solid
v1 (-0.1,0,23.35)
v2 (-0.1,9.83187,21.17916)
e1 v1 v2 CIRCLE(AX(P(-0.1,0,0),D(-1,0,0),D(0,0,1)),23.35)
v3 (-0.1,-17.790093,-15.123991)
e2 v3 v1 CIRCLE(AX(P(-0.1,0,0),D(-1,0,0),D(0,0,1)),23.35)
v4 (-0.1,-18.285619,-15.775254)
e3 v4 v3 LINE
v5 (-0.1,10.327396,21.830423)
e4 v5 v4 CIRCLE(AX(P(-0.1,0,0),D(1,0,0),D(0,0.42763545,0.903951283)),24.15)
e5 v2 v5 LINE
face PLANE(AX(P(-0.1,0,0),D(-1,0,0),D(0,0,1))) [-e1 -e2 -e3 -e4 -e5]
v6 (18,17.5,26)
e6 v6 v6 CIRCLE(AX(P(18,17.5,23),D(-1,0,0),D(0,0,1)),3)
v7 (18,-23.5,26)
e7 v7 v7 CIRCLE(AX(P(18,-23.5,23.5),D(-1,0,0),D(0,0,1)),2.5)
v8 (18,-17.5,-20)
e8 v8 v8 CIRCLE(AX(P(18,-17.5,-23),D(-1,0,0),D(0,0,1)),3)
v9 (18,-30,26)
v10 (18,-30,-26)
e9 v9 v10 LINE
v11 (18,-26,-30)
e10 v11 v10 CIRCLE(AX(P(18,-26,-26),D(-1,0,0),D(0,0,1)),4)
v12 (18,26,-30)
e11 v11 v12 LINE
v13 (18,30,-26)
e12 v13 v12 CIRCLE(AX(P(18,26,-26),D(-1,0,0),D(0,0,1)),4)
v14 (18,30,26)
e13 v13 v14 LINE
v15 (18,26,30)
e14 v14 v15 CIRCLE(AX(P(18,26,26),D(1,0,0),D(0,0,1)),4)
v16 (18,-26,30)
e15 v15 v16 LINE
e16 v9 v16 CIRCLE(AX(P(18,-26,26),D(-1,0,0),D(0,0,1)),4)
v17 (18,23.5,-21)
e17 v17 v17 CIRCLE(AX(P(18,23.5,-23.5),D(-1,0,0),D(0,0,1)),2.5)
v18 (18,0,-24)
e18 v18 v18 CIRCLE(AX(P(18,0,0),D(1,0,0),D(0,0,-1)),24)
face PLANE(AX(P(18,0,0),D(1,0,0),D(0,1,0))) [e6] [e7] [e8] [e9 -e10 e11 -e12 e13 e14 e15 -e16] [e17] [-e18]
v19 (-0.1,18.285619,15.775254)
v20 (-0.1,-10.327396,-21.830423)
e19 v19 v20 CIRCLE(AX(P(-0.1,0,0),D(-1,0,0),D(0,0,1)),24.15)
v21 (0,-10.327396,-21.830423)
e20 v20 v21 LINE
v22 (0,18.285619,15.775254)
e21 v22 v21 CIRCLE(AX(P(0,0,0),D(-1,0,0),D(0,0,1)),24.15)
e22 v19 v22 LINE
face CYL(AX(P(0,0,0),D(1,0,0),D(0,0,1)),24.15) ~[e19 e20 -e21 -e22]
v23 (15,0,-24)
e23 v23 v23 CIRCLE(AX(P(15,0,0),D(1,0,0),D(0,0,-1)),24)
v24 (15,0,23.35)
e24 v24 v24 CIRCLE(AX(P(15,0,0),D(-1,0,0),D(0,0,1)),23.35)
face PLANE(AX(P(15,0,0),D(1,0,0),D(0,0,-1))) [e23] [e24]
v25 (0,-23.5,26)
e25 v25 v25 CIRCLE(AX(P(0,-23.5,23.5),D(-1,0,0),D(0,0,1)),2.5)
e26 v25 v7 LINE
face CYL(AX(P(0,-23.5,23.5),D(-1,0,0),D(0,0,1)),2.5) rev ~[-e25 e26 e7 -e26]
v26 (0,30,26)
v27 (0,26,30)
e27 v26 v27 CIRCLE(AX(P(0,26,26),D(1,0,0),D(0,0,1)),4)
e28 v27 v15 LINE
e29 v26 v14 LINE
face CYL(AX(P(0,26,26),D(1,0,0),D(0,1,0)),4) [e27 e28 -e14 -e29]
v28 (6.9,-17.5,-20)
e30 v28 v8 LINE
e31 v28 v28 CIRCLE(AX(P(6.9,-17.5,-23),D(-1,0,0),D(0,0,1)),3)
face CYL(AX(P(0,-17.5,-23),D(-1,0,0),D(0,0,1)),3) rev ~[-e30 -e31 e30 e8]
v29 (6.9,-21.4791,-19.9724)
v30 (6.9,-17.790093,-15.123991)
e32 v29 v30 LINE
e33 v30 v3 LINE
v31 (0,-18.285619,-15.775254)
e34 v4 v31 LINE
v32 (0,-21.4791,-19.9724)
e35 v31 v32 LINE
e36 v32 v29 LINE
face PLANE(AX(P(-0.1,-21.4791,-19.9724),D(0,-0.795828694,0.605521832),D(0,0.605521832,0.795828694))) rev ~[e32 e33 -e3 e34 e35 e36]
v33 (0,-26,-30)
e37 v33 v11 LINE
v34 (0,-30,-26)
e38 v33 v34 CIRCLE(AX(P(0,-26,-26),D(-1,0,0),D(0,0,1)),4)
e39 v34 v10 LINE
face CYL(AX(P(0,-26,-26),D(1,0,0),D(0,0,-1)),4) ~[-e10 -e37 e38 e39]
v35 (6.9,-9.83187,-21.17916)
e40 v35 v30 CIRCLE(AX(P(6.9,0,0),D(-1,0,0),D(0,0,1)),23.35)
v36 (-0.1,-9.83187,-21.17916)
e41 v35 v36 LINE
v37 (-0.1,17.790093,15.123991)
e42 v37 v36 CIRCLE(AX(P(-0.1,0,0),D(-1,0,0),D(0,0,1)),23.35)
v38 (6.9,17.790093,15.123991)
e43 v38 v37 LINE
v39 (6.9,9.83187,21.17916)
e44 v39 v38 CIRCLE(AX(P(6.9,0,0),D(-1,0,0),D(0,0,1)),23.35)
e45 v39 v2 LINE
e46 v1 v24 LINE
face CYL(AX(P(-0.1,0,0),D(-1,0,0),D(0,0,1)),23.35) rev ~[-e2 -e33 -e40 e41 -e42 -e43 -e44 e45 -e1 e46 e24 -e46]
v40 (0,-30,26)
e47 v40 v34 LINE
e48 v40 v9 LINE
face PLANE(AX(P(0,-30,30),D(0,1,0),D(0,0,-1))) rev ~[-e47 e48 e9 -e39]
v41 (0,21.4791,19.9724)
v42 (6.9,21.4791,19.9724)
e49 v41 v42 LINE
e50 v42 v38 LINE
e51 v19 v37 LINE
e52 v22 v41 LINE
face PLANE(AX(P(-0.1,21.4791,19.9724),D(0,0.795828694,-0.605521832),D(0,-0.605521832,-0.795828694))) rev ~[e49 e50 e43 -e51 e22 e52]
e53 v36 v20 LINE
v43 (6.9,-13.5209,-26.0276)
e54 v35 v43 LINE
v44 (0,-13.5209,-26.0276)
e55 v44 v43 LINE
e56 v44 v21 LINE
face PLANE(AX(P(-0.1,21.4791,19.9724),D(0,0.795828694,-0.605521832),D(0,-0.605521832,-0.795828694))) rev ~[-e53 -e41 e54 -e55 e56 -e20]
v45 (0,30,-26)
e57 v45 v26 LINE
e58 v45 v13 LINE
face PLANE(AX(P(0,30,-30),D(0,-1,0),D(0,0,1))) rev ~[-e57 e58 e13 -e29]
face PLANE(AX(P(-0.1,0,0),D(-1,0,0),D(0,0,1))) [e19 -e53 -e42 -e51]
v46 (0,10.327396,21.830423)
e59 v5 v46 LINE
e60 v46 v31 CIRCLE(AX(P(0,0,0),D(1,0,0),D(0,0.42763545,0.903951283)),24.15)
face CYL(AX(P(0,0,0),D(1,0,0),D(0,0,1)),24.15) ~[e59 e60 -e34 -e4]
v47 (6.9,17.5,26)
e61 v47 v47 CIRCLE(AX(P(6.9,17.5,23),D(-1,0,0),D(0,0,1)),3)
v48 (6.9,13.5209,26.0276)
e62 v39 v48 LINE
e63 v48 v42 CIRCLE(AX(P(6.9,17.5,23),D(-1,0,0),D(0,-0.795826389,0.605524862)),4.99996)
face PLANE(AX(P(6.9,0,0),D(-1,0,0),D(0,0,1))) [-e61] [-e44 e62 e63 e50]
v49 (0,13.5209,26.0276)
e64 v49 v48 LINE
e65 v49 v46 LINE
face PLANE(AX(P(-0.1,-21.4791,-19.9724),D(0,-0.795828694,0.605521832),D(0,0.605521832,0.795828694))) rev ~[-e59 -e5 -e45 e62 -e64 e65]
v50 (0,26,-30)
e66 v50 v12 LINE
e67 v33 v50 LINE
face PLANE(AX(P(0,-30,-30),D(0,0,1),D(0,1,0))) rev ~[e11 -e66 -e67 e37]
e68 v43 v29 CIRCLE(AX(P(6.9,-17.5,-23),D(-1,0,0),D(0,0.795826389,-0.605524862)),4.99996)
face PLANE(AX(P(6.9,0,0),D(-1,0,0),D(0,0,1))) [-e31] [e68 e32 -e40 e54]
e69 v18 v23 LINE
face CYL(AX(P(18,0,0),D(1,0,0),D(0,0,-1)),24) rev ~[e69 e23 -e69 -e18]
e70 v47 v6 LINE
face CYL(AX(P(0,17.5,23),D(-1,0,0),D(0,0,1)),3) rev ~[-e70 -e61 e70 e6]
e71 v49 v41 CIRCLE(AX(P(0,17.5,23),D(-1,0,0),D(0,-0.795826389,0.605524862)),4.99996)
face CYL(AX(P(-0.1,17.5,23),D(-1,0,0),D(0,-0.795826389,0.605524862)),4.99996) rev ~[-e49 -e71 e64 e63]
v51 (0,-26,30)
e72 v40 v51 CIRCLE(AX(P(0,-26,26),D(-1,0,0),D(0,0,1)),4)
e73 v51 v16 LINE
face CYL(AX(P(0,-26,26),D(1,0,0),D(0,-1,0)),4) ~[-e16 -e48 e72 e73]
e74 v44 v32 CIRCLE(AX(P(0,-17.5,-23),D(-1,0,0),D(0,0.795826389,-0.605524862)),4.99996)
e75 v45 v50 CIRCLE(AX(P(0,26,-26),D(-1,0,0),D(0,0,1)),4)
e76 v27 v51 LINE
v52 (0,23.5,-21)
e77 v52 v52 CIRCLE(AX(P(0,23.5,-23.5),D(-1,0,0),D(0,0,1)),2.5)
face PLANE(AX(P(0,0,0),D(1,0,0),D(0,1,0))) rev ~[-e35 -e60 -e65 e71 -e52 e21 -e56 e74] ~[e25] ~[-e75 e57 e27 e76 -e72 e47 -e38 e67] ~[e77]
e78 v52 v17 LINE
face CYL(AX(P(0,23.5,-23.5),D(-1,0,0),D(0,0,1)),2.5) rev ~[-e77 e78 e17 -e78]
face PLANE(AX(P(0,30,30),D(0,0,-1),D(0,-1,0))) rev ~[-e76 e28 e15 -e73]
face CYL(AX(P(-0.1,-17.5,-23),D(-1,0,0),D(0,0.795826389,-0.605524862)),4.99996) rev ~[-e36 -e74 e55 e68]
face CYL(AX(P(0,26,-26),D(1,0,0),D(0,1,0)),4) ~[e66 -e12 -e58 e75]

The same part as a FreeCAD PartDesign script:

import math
import FreeCAD as App
import Part
import Sketcher

V = App.Vector
Q = App.Units.Quantity


def edges_at(feature, points):
    """Names of the edges that pass closest to the given points."""
    edges = feature.Shape.Edges
    near = lambda p: min(range(len(edges)), key=lambda i: edges[i].distToShape(Part.Vertex(*p))[0])
    return sorted({f"Edge{near(p) + 1}" for p in points})

doc = App.newDocument("Part")
body = doc.addObject("PartDesign::Body", "Body")

# Sketch on YZ plane
sketch1 = body.newObject("Sketcher::SketchObject", "Sketch")
sketch1.AttachmentSupport = (doc.getObject("YZ_Plane"), [""])
sketch1.MapMode = "FlatFace"
sketch1.addGeometry(Part.LineSegment(V(30, -30, 0), V(30, 30, 0)), False)
sketch1.addGeometry(Part.LineSegment(V(30, 30, 0), V(-30, 30, 0)), False)
sketch1.addGeometry(Part.LineSegment(V(-30, 30, 0), V(-30, -30, 0)), False)
sketch1.addGeometry(Part.LineSegment(V(-30, -30, 0), V(30, -30, 0)), False)
sketch1.addConstraint(Sketcher.Constraint("Coincident", 0, 2, 1, 1))
sketch1.addConstraint(Sketcher.Constraint("Coincident", 1, 2, 2, 1))
sketch1.addConstraint(Sketcher.Constraint("Coincident", 2, 2, 3, 1))
sketch1.addConstraint(Sketcher.Constraint("Coincident", 3, 2, 0, 1))
sketch1.addConstraint(Sketcher.Constraint("Vertical", 0))
sketch1.addConstraint(Sketcher.Constraint("Horizontal", 1))
sketch1.addConstraint(Sketcher.Constraint("Vertical", 2))
sketch1.addConstraint(Sketcher.Constraint("Horizontal", 3))
sketch1.addConstraint(Sketcher.Constraint("Symmetric", 0, 2, 2, 2, -1, 1))
sketch1.addConstraint(Sketcher.Constraint("Equal", 3, 0))
sketch1.addConstraint(Sketcher.Constraint("DistanceX", 1, 2, 1, 1, Q("60 mm")))
pad1 = body.newObject("PartDesign::Pad", "Pad")
pad1.Profile = sketch1
pad1.Length = 18
doc.recompute()

fillet = body.newObject("PartDesign::Fillet", "Fillet")
fillet.Base = (pad1, edges_at(pad1, [
    (9, 30, 30),
    (9, 30, -30),
    (9, -30, 30),
    (9, -30, -30),
]))
fillet.Radius = 4

# Sketch on YZ plane
sketch2 = body.newObject("Sketcher::SketchObject", "Sketch001")
sketch2.AttachmentSupport = (doc.getObject("YZ_Plane"), [""])
sketch2.MapMode = "FlatFace"
sketch2.addGeometry(Part.Circle(V(0, 0, 0), V(0, 0, 1), 24.15), False)
sketch2.addConstraint(Sketcher.Constraint("Coincident", 0, 3, -1, 1))
sketch2.addConstraint(Sketcher.Constraint("Diameter", 0, Q("48.3 mm")))
pad2 = body.newObject("PartDesign::Pad", "Pad001")
pad2.Profile = sketch2
pad2.Length = 0.1
pad2.Reversed = True

# Sketch on YZ plane
sketch3 = body.newObject("Sketcher::SketchObject", "Sketch002")
sketch3.AttachmentSupport = (doc.getObject("YZ_Plane"), [""])
sketch3.MapMode = "FlatFace"
sketch3.AttachmentOffset = App.Placement(V(0, 0, -0.1), App.Rotation())
sketch3.addGeometry(Part.Circle(V(0, 0, 0), V(0, 0, 1), 23.35), False)
sketch3.addConstraint(Sketcher.Constraint("Coincident", 0, 3, -1, 1))
sketch3.addConstraint(Sketcher.Constraint("Diameter", 0, Q("46.7 mm")))
pocket1 = body.newObject("PartDesign::Pocket", "Pocket")
pocket1.Profile = sketch3
pocket1.Type = "ThroughAll"
pocket1.Reversed = True

# Sketch on YZ plane
sketch4 = body.newObject("Sketcher::SketchObject", "Sketch003")
sketch4.AttachmentSupport = (doc.getObject("YZ_Plane"), [""])
sketch4.MapMode = "FlatFace"
sketch4.AttachmentOffset = App.Placement(V(0, 0, 18), App.Rotation())
sketch4.addGeometry(Part.Circle(V(0, 0, 0), V(0, 0, 1), 24), False)
sketch4.addConstraint(Sketcher.Constraint("Coincident", 0, 3, -1, 1))
sketch4.addConstraint(Sketcher.Constraint("Diameter", 0, Q("48 mm")))
pocket2 = body.newObject("PartDesign::Pocket", "Pocket001")
pocket2.Profile = sketch4
pocket2.Length = 3

# Sketch on YZ plane
sketch5 = body.newObject("Sketcher::SketchObject", "Sketch004")
sketch5.AttachmentSupport = (doc.getObject("YZ_Plane"), [""])
sketch5.MapMode = "FlatFace"
sketch5.addGeometry(Part.Circle(V(17.5, 23, 0), V(0, 0, 1), 3), False)
sketch5.addGeometry(Part.Circle(V(-17.5, -23, 0), V(0, 0, 1), 3), False)
sketch5.addGeometry(Part.Circle(V(23.5, -23.5, 0), V(0, 0, 1), 2.5), False)
sketch5.addGeometry(Part.Circle(V(-23.5, 23.5, 0), V(0, 0, 1), 2.5), False)
sketch5.addConstraint(Sketcher.Constraint("Equal", 0, 1))
sketch5.addConstraint(Sketcher.Constraint("Equal", 2, 3))
sketch5.addConstraint(Sketcher.Constraint("Symmetric", 0, 3, 1, 3, -1, 1))
sketch5.addConstraint(Sketcher.Constraint("Symmetric", 2, 3, 3, 3, -1, 1))
sketch5.addConstraint(Sketcher.Constraint("Diameter", 0, Q("6 mm")))
sketch5.addConstraint(Sketcher.Constraint("Diameter", 2, Q("5 mm")))
sketch5.addConstraint(Sketcher.Constraint("DistanceX", 0, 3, 2, 3, Q("6 mm")))
sketch5.addConstraint(Sketcher.Constraint("DistanceX", -1, 1, 2, 3, Q("23.5 mm")))
sketch5.addConstraint(Sketcher.Constraint("DistanceY", 2, 3, -1, 1, Q("23.5 mm")))
sketch5.addConstraint(Sketcher.Constraint("DistanceY", -1, 1, 0, 3, Q("23 mm")))
pocket3 = body.newObject("PartDesign::Pocket", "Pocket002")
pocket3.Profile = sketch5
pocket3.Type = "ThroughAll"
pocket3.Reversed = True

# Sketch on YZ plane
sketch6 = body.newObject("Sketcher::SketchObject", "Sketch005")
sketch6.AttachmentSupport = (doc.getObject("YZ_Plane"), [""])
sketch6.MapMode = "FlatFace"
sketch6.AttachmentOffset = App.Placement(V(0, 0, -0.1), App.Rotation())
sketch6.addGeometry(Part.ArcOfCircle(Part.Circle(V(-17.5, -23, 0), V(0, 0, 1), 4.99996), math.radians(142.73338), math.radians(322.73338)), False)
sketch6.addGeometry(Part.LineSegment(V(-21.4791, -19.9724, 0), V(13.5209, 26.0276, 0)), False)
sketch6.addGeometry(Part.ArcOfCircle(Part.Circle(V(17.5, 23, 0), V(0, 0, 1), 4.99996), math.radians(-37.26662), math.radians(142.73338)), False)
sketch6.addGeometry(Part.LineSegment(V(21.4791, 19.9724, 0), V(-13.5209, -26.0276, 0)), False)
sketch6.addGeometry(Part.Circle(V(-17.5, -23, 0), V(0, 0, 1), 3), False)
sketch6.addGeometry(Part.Circle(V(17.5, 23, 0), V(0, 0, 1), 3), False)
sketch6.addConstraint(Sketcher.Constraint("Tangent", 0, 1, 1, 1))
sketch6.addConstraint(Sketcher.Constraint("Tangent", 1, 2, 2, 2))
sketch6.addConstraint(Sketcher.Constraint("Tangent", 2, 1, 3, 1))
sketch6.addConstraint(Sketcher.Constraint("Tangent", 3, 2, 0, 2))
sketch6.addConstraint(Sketcher.Constraint("Coincident", 4, 3, 0, 3))
sketch6.addConstraint(Sketcher.Constraint("Coincident", 5, 3, 2, 3))
sketch6.addConstraint(Sketcher.Constraint("Equal", 0, 2))
sketch6.addConstraint(Sketcher.Constraint("Equal", 4, 5))
sketch6.addConstraint(Sketcher.Constraint("Symmetric", 0, 3, 2, 3, -1, 1))
sketch6.addConstraint(Sketcher.Constraint("Radius", 0, Q("5 mm")))
sketch6.addConstraint(Sketcher.Constraint("Diameter", 4, Q("6 mm")))
sketch6.addConstraint(Sketcher.Constraint("DistanceY", 0, 3, -1, 1, Q("23 mm")))
sketch6.addConstraint(Sketcher.Constraint("DistanceX", 0, 3, 2, 3, Q("35 mm")))
pocket4 = body.newObject("PartDesign::Pocket", "Pocket003")
pocket4.Profile = sketch6
pocket4.Length = 7
pocket4.Reversed = True

doc.recompute()
